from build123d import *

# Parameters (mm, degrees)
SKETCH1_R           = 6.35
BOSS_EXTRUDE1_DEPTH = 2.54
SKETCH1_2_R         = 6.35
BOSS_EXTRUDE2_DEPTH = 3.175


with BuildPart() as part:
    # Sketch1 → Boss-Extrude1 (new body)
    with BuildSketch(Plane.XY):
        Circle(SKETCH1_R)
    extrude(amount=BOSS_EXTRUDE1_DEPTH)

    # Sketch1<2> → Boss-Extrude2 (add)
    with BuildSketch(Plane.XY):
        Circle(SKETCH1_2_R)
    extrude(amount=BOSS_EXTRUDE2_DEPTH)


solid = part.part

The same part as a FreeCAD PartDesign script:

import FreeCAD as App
import Part
import Sketcher
from FreeCAD import Vector
Q = App.Units.Quantity

doc = App.newDocument("Part")
body = doc.addObject("PartDesign::Body", "Body")

# Sketch on XY plane
sketch1 = body.newObject("Sketcher::SketchObject", "Sketch")
sketch1.AttachmentSupport = (doc.getObject("XY_Plane"), [""])
sketch1.MapMode = "FlatFace"
sketch1.addGeometry(Part.Circle(Vector(0, 0, 0), Vector(0, 0, 1), 6), False)
sketch1.addConstraint([
    Sketcher.Constraint("Coincident", 0, 3, -1, 1),
    Sketcher.Constraint("Diameter", 0, Q("0.5 in")),
])
pad1 = body.newObject("PartDesign::Pad", "Pad")
pad1.Profile = sketch1
pad1.Length = Q("0.1 in")

# Sketch on XY plane
sketch2 = body.newObject("Sketcher::SketchObject", "Sketch001")
sketch2.AttachmentSupport = (doc.getObject("XY_Plane"), [""])
sketch2.MapMode = "FlatFace"
sketch2.addGeometry(Part.Circle(Vector(0, 0, 0), Vector(0, 0, 1), 6), False)
sketch2.addConstraint([
    Sketcher.Constraint("Coincident", 0, 3, -1, 1),
    Sketcher.Constraint("Diameter", 0, Q("0.5 in")),
])
pad2 = body.newObject("PartDesign::Pad", "Pad001")
pad2.Profile = sketch2
pad2.Length = Q("0.125 in")

doc.recompute()
